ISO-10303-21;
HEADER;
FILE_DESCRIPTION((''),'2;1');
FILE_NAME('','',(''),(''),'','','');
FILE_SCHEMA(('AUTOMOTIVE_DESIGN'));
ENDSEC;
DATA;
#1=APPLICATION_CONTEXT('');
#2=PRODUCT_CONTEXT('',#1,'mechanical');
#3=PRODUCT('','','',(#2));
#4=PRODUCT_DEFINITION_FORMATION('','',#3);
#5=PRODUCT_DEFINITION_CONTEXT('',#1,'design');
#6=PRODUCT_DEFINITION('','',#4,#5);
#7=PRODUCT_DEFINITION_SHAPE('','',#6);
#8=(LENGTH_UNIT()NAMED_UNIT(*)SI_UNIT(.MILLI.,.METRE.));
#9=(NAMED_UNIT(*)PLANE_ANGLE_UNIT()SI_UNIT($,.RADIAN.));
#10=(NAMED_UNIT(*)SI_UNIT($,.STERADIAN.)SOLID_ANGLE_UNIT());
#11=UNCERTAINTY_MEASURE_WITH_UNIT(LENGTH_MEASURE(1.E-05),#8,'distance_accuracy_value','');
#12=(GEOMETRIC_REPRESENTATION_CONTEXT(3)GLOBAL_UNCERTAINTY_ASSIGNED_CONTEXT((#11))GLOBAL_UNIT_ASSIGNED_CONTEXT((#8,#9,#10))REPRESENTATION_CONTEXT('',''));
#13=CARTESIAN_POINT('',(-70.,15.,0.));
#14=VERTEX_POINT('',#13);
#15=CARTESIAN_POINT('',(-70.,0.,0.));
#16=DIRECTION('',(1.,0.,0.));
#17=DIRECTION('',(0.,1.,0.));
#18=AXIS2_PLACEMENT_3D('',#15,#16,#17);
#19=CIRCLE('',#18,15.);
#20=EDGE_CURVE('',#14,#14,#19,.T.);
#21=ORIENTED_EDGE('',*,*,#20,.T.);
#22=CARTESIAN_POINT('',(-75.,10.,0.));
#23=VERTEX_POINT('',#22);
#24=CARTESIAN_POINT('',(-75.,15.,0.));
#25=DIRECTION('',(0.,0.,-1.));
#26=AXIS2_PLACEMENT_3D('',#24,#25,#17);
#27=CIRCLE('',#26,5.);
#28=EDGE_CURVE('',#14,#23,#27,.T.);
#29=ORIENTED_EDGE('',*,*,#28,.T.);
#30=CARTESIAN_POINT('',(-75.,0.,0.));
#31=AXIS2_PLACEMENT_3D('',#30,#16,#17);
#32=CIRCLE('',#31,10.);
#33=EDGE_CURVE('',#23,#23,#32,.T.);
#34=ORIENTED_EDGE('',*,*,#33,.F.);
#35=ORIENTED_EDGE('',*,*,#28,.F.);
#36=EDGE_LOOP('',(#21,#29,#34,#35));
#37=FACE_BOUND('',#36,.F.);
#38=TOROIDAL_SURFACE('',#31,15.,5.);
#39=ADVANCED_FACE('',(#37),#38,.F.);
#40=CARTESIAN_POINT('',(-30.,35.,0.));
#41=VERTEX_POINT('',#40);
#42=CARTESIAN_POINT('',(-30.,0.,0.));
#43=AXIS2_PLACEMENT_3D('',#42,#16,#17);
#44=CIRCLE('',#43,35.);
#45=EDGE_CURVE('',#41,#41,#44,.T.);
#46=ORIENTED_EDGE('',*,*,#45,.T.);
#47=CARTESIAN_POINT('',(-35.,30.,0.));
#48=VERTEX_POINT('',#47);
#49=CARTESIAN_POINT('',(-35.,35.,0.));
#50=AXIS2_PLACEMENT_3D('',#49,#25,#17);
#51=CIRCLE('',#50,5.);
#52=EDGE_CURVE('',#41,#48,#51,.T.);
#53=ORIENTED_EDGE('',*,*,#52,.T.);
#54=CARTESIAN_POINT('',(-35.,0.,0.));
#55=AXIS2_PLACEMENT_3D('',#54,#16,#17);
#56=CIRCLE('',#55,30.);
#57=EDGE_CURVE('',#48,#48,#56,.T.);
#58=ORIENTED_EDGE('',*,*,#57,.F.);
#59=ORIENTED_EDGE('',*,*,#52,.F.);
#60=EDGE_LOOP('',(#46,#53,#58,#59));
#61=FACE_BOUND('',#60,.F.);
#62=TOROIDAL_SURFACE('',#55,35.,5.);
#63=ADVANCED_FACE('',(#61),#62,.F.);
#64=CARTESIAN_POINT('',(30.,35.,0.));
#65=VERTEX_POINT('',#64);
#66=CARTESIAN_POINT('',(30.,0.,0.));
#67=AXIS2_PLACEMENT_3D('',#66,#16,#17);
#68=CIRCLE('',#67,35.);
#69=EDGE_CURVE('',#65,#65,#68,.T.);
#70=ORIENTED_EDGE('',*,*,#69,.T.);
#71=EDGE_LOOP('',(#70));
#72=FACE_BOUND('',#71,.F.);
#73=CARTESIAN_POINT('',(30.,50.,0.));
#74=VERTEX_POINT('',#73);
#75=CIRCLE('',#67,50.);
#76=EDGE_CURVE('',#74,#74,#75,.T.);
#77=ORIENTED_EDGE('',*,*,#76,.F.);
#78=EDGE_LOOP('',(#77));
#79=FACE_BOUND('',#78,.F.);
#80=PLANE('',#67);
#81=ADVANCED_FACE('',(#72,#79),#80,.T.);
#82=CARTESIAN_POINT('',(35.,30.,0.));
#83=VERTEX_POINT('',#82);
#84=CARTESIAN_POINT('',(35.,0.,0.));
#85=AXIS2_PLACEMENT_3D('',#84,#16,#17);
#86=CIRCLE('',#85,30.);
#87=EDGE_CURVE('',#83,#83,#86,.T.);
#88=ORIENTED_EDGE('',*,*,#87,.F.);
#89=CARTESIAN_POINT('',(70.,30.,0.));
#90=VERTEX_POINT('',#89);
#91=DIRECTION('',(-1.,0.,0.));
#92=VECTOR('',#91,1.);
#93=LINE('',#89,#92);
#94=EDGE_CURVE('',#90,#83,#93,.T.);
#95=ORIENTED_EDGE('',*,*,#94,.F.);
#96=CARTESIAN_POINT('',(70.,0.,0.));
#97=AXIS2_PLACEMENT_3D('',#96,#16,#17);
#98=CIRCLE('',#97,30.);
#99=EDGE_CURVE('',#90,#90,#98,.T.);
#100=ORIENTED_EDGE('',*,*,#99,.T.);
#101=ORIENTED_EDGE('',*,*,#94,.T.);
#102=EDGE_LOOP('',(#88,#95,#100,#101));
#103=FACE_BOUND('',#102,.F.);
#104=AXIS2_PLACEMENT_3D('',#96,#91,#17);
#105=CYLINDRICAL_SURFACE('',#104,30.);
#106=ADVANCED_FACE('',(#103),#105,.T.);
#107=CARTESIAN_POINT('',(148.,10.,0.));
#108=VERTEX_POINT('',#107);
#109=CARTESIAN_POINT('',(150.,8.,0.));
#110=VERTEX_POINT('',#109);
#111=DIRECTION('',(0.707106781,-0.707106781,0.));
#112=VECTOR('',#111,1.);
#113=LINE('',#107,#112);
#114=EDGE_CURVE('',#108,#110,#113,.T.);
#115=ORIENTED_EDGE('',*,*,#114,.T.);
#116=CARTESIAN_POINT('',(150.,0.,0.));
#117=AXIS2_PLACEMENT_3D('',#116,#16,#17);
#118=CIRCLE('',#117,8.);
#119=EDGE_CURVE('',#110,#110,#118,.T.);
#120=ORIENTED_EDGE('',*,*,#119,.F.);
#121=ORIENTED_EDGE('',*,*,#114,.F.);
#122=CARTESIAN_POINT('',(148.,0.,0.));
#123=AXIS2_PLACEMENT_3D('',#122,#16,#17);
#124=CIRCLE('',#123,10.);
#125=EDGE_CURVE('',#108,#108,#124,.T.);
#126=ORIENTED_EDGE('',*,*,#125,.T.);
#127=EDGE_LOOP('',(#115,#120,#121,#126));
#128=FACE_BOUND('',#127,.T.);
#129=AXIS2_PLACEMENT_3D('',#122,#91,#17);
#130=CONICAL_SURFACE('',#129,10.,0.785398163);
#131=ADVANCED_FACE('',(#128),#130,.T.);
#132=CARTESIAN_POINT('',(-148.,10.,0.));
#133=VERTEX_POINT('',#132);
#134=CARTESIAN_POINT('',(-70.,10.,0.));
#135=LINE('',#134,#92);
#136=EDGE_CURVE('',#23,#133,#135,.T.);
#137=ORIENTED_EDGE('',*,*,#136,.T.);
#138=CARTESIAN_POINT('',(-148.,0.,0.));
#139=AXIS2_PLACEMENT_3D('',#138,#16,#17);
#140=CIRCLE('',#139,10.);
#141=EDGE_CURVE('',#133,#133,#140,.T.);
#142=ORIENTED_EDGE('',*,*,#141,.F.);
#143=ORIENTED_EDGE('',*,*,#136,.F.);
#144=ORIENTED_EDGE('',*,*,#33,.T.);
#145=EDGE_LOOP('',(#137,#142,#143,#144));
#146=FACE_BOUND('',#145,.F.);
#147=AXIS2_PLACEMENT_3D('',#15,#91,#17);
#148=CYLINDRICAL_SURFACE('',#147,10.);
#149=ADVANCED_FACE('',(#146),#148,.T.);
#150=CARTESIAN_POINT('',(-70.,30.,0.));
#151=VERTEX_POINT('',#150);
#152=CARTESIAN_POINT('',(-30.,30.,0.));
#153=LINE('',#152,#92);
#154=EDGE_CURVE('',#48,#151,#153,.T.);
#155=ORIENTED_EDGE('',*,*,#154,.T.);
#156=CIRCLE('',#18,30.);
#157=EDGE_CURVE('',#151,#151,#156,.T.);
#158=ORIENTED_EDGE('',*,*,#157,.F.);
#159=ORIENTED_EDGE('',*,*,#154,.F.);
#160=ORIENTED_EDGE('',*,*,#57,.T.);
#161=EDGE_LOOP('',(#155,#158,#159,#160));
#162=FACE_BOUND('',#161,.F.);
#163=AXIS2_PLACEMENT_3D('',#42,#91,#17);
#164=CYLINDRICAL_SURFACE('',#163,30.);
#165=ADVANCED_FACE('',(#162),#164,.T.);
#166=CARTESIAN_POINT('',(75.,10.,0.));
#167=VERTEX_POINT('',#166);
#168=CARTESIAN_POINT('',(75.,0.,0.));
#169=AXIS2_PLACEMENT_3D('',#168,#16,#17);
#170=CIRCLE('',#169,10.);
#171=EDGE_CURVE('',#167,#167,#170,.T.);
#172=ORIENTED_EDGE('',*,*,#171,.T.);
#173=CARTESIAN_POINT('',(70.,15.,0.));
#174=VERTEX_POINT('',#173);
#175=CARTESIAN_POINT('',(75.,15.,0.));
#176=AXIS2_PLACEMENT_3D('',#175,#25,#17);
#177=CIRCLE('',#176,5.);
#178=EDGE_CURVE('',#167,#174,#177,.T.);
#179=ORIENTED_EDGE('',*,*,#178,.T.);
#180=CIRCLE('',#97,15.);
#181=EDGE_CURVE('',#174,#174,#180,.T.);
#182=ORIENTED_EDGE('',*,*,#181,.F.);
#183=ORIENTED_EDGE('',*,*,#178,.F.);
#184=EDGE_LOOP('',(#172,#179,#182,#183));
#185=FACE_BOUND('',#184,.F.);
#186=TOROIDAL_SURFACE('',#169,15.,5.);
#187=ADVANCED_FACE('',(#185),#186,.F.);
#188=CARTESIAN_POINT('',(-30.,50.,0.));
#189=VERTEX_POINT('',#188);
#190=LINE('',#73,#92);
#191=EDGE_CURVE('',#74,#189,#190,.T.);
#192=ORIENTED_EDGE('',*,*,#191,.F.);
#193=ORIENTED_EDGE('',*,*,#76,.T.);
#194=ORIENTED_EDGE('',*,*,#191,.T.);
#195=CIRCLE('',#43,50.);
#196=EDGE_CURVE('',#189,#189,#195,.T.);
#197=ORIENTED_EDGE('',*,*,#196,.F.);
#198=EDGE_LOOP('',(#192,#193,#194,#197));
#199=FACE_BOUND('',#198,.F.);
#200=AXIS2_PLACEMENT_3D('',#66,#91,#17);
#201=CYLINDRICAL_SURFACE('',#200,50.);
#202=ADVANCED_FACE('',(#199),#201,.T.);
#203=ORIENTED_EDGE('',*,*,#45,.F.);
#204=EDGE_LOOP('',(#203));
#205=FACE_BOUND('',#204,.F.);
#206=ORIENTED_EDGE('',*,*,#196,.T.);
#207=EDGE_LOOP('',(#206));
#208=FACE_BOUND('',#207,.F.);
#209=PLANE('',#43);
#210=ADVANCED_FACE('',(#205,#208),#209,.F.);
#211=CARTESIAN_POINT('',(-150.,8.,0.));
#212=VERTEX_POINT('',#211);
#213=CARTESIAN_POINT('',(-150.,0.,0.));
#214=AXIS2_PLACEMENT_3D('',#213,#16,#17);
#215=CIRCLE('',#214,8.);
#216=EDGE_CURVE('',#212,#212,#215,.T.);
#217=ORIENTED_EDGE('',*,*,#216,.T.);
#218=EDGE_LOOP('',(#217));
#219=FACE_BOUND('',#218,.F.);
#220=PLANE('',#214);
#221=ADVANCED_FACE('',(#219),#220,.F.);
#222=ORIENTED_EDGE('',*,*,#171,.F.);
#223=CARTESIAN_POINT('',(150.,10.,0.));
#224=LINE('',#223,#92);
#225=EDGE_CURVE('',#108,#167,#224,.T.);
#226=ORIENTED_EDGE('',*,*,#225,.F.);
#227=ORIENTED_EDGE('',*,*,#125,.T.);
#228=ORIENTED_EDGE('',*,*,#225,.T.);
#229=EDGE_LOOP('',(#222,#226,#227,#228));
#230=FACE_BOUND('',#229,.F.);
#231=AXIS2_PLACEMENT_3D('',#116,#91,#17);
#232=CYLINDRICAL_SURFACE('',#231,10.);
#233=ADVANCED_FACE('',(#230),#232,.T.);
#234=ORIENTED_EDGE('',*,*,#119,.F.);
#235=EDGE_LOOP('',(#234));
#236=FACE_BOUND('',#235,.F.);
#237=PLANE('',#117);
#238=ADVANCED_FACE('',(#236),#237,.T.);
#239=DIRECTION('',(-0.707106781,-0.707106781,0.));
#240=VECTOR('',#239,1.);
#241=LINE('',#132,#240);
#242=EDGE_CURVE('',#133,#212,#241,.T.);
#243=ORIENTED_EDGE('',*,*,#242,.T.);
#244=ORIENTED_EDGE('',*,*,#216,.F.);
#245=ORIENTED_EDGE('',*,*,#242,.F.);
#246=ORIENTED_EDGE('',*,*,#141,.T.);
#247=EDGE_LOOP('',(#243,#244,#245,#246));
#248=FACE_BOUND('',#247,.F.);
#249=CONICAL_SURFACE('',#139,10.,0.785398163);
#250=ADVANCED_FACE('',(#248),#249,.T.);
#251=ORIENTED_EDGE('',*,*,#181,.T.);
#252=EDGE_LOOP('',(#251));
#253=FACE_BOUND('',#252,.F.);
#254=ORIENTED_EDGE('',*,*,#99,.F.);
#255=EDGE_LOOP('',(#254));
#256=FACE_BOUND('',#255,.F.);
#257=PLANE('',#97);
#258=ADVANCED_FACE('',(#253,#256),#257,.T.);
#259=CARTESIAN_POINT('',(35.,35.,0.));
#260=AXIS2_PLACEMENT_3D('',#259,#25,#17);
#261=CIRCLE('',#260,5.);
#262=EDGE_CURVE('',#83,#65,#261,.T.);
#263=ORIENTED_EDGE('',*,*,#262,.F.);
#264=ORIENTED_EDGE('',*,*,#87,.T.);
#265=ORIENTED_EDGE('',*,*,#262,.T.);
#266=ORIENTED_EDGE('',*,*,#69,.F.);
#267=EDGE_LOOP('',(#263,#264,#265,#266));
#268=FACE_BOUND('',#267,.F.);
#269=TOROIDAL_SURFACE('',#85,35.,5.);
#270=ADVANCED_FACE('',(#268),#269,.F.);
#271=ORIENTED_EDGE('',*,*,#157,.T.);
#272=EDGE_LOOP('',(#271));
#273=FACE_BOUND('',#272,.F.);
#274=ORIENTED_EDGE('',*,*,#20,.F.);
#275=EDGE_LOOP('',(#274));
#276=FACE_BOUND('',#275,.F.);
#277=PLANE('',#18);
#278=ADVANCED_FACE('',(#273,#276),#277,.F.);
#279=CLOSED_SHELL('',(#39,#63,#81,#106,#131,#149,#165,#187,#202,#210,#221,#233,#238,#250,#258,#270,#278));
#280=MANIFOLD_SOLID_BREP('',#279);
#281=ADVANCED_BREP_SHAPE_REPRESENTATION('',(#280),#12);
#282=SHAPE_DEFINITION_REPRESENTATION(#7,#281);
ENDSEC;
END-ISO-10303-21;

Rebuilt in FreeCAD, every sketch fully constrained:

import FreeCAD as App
import Part
import Sketcher

V = App.Vector


def edges_at(feature, points):
    """Names of the edges that pass closest to the given points."""
    edges = feature.Shape.Edges
    near = lambda p: min(range(len(edges)), key=lambda i: edges[i].distToShape(Part.Vertex(*p))[0])
    return sorted({f"Edge{near(p) + 1}" for p in points})

doc = App.newDocument("Part")
body = doc.addObject("PartDesign::Body", "Body")

# Sketch on XY plane
sketch1 = body.newObject("Sketcher::SketchObject", "Sketch")
sketch1.AttachmentSupport = (doc.getObject("XY_Plane"), [""])
sketch1.MapMode = "FlatFace"
sketch1.addGeometry([
    Part.LineSegment(V(-150, 10, 0), V(-150, 0, 0)),  # 0
    Part.LineSegment(V(-150, 0, 0), V(150, 0, 0)),  # 1
    Part.LineSegment(V(150, 0, 0), V(150, 10, 0)),  # 2
    Part.LineSegment(V(150, 10, 0), V(70, 10, 0)),  # 3
    Part.LineSegment(V(70, 10, 0), V(70, 30, 0)),  # 4
    Part.LineSegment(V(70, 30, 0), V(30, 30, 0)),  # 5
    Part.LineSegment(V(30, 30, 0), V(30, 50, 0)),  # 6
    Part.LineSegment(V(30, 50, 0), V(-30, 50, 0)),  # 7
    Part.LineSegment(V(-30, 50, 0), V(-30, 30, 0)),  # 8
    Part.LineSegment(V(-30, 30, 0), V(-70, 30, 0)),  # 9
    Part.LineSegment(V(-70, 30, 0), V(-70, 10, 0)),  # 10
    Part.LineSegment(V(-70, 10, 0), V(-150, 10, 0)),  # 11
], False)
sketch1.addConstraint([
    Sketcher.Constraint("Coincident", 0, 2, 1, 1),
    Sketcher.Constraint("Coincident", 1, 2, 2, 1),
    Sketcher.Constraint("Coincident", 2, 2, 3, 1),
    Sketcher.Constraint("Coincident", 3, 2, 4, 1),
    Sketcher.Constraint("Coincident", 4, 2, 5, 1),
    Sketcher.Constraint("Coincident", 5, 2, 6, 1),
    Sketcher.Constraint("Coincident", 6, 2, 7, 1),
    Sketcher.Constraint("Coincident", 7, 2, 8, 1),
    Sketcher.Constraint("Coincident", 8, 2, 9, 1),
    Sketcher.Constraint("Coincident", 9, 2, 10, 1),
    Sketcher.Constraint("Coincident", 10, 2, 11, 1),
    Sketcher.Constraint("Coincident", 11, 2, 0, 1),
    Sketcher.Constraint("Vertical", 0),
    Sketcher.Constraint("Horizontal", 1),
    Sketcher.Constraint("Vertical", 2),
    Sketcher.Constraint("Horizontal", 3),
    Sketcher.Constraint("Vertical", 4),
    Sketcher.Constraint("Horizontal", 5),
    Sketcher.Constraint("Vertical", 6),
    Sketcher.Constraint("Horizontal", 7),
    Sketcher.Constraint("Vertical", 8),
    Sketcher.Constraint("Horizontal", 9),
    Sketcher.Constraint("Vertical", 10),
    Sketcher.Constraint("Horizontal", 11),
    Sketcher.Constraint("Symmetric", 0, 2, 1, 2, -1, 1),
    Sketcher.Constraint("Symmetric", 5, 2, 8, 2, -2),
    Sketcher.Constraint("Symmetric", 3, 2, 10, 2, -2),
    Sketcher.Constraint("Equal", 4, 6),
    Sketcher.Constraint("DistanceX", 1, 1, 1, 2, 300.0),
    Sketcher.Constraint("DistanceX", 3, 2, 3, 1, 80.0),
    Sketcher.Constraint("DistanceX", 5, 2, 5, 1, 40.0),
    Sketcher.Constraint("DistanceY", 0, 2, 0, 1, 10.0),
    Sketcher.Constraint("DistanceY", 4, 1, 4, 2, 20.0),
])
revolution = body.newObject("PartDesign::Revolution", "Revolution")
revolution.Profile = sketch1
revolution.ReferenceAxis = (sketch1, ["H_Axis"])
revolution.Angle = 360
doc.recompute()

fillet = body.newObject("PartDesign::Fillet", "Fillet")
fillet.Base = (revolution, edges_at(revolution, [(-30, -30, 0), (30, -30, 0)]))
fillet.Radius = 5
doc.recompute()

chamfer = body.newObject("PartDesign::Chamfer", "Chamfer")
chamfer.Base = (fillet, edges_at(fillet, [(-150, -10, 0), (150, -10, 0)]))
chamfer.Size = 2
doc.recompute()

fillet2 = body.newObject("PartDesign::Fillet", "Fillet001")
fillet2.Base = (chamfer, edges_at(chamfer, [(-70, -10, 0), (70, -10, 0)]))
fillet2.Radius = 5

doc.recompute()
